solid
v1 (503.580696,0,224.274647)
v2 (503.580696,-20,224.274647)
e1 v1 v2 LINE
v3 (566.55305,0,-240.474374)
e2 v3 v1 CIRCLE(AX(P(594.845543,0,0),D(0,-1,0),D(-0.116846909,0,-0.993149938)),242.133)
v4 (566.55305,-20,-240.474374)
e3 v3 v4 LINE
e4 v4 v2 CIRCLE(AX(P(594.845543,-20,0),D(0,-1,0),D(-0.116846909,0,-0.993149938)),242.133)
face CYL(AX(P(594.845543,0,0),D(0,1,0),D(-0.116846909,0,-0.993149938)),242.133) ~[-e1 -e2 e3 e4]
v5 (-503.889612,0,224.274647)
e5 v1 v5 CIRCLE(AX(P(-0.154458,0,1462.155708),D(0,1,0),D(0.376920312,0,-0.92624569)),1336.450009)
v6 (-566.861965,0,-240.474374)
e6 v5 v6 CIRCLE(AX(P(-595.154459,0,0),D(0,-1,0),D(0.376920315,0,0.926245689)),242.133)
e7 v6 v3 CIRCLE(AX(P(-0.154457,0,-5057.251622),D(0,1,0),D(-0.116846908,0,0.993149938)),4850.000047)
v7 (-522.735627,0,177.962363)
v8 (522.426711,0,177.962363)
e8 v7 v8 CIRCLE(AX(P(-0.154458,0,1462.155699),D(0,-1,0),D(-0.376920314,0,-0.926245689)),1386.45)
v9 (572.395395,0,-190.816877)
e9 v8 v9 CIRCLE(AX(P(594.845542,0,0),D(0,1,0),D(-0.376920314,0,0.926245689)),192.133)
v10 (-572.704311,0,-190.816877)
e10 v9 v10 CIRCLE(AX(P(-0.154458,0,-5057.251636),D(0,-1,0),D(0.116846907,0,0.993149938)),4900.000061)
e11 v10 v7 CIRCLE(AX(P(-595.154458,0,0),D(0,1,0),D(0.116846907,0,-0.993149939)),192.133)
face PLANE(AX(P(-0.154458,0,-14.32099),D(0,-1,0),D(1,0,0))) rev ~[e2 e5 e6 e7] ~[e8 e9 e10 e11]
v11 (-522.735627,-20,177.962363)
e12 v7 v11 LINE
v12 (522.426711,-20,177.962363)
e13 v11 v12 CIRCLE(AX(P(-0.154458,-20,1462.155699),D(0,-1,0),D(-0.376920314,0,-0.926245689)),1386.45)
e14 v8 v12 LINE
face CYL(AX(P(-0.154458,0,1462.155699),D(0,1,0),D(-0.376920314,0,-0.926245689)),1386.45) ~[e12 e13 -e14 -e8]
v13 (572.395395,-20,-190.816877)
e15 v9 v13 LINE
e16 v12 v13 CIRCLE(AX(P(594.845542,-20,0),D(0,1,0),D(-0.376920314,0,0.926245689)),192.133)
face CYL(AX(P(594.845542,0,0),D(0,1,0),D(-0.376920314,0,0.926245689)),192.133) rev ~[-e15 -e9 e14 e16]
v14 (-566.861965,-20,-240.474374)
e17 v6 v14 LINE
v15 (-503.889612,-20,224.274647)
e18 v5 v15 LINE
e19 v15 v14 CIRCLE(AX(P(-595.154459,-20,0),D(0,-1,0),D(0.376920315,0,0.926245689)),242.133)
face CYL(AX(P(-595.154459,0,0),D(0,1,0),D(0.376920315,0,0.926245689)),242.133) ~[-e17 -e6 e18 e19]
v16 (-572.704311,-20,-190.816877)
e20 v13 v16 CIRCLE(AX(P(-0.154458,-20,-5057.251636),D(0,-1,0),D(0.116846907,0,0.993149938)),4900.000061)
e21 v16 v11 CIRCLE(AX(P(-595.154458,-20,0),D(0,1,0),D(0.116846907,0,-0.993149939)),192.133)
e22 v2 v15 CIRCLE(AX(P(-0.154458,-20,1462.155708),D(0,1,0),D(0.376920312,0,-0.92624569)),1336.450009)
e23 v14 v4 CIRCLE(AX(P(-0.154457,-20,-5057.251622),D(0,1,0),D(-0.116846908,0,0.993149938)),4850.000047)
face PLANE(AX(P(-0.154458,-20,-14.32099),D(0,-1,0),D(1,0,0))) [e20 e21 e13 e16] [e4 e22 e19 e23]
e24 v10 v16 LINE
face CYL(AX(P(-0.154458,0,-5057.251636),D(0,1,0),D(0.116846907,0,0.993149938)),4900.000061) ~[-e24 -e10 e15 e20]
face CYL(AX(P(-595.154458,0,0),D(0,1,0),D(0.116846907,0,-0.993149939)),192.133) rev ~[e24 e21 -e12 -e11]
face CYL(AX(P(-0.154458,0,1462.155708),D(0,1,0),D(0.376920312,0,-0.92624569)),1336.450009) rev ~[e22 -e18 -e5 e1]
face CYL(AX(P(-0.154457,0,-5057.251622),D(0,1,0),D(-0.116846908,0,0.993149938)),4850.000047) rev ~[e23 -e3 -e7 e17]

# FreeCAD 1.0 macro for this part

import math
import FreeCAD as App
import Part
import Sketcher
Q = App.Units.Quantity

doc = App.newDocument("Part")
body = doc.addObject("PartDesign::Body", "Body")

sketch1 = body.newObject("Sketcher::SketchObject", "Sketch")
sketch1.AttachmentSupport = (doc.getObject("XZ_Plane"), [""])
sketch1.MapMode = "FlatFace"
sketch1.addGeometry([
    Part.ArcOfCircle(Part.Circle(App.Vector(0, 1462, 0), App.Vector(0, 0, 1), 1336), math.radians(-112), math.radians(-68)),
    Part.ArcOfCircle(Part.Circle(App.Vector(-595, 0, 0), App.Vector(0, 0, 1), 242), math.radians(68), math.radians(277)),
    Part.ArcOfCircle(Part.Circle(App.Vector(0, -5057, 0), App.Vector(0, 0, 1), 4850), math.radians(83.29), math.radians(96.71)),
    Part.ArcOfCircle(Part.Circle(App.Vector(595, 0, 0), App.Vector(0, 0, 1), 242), math.radians(-97), math.radians(112)),
    Part.ArcOfCircle(Part.Circle(App.Vector(0, -5057, 0), App.Vector(0, 0, 1), 4900), math.radians(83.29), math.radians(96.71)),
    Part.ArcOfCircle(Part.Circle(App.Vector(-595, 0, 0), App.Vector(0, 0, 1), 192), math.radians(68), math.radians(277)),
    Part.ArcOfCircle(Part.Circle(App.Vector(0, 1462, 0), App.Vector(0, 0, 1), 1386), math.radians(-112), math.radians(-68)),
    Part.ArcOfCircle(Part.Circle(App.Vector(595, 0, 0), App.Vector(0, 0, 1), 192), math.radians(-97), math.radians(112)),
], False)
sketch1.addConstraint([
    Sketcher.Constraint("Tangent", 0, 1, 1, 1),
    Sketcher.Constraint("Tangent", 1, 2, 2, 2),
    Sketcher.Constraint("Tangent", 2, 1, 3, 1),
    Sketcher.Constraint("Tangent", 3, 2, 0, 2),
    Sketcher.Constraint("Tangent", 4, 2, 5, 2),
    Sketcher.Constraint("Tangent", 5, 1, 6, 1),
    Sketcher.Constraint("Tangent", 6, 2, 7, 2),
    Sketcher.Constraint("Tangent", 7, 1, 4, 1),
    Sketcher.Constraint("Coincident", 5, 3, 1, 3),
    Sketcher.Constraint("Coincident", 6, 3, 0, 3),
    Sketcher.Constraint("Coincident", 7, 3, 3, 3),
    Sketcher.Constraint("Equal", 1, 3),
    Sketcher.Constraint("PointOnObject", 1, 3, -1),
    Sketcher.Constraint("PointOnObject", 3, 3, -1),
    Sketcher.Constraint("Radius", 6, Q("1386.45 mm")),
    Sketcher.Constraint("Radius", 1, Q("242.133 mm")),
    Sketcher.Constraint("Radius", 5, Q("192.133 mm")),
    Sketcher.Constraint("DistanceX", 1, 3, 0, 3, Q("595.000001 mm")),
    Sketcher.Constraint("Radius", 4, Q("4900.000061 mm")),
    Sketcher.Constraint("Radius", 2, Q("4850.000047 mm")),
    Sketcher.Constraint("DistanceX", 0, 3, -1, 1, Q("0.154458 mm")),
])
pad1 = body.newObject("PartDesign::Pad", "Pad")
pad1.Profile = sketch1
pad1.Length = 20

doc.recompute()
